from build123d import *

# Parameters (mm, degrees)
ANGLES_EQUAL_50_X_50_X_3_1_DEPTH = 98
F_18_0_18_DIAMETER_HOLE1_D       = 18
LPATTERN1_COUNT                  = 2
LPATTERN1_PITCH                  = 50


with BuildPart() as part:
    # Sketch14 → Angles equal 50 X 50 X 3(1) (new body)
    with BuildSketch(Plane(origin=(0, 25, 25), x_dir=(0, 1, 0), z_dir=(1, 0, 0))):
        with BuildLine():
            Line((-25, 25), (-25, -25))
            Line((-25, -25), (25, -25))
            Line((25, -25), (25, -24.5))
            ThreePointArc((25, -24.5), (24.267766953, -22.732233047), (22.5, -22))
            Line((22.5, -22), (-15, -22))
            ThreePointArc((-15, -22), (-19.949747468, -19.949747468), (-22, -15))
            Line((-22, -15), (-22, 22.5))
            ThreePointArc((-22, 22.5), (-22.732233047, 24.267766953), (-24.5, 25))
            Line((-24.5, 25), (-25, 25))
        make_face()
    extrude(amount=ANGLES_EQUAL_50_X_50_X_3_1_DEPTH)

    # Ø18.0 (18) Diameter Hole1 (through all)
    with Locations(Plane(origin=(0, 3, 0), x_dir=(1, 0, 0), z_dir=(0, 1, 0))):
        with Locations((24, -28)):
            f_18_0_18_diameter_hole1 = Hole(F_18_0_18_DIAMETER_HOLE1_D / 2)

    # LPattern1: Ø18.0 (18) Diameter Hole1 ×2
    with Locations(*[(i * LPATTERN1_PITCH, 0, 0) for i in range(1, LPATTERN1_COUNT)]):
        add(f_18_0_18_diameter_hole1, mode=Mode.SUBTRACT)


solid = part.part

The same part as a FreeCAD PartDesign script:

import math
import FreeCAD as App
import Part
import Sketcher
from FreeCAD import Vector

doc = App.newDocument("Part")
body = doc.addObject("PartDesign::Body", "Body")

# Sketch on YZ plane
sketch1 = body.newObject("Sketcher::SketchObject", "Sketch")
sketch1.AttachmentSupport = (doc.getObject("YZ_Plane"), [""])
sketch1.MapMode = "FlatFace"
sketch1.addGeometry(Part.LineSegment(Vector(0, 50, 0), Vector(0, 0, 0)), False)
sketch1.addGeometry(Part.LineSegment(Vector(0, 0, 0), Vector(50, 0, 0)), False)
sketch1.addGeometry(Part.LineSegment(Vector(50, 0, 0), Vector(50, 0.5, 0)), False)
sketch1.addGeometry(Part.ArcOfCircle(Part.Circle(Vector(47.5, 0.5, 0), Vector(0, 0, 1), 2.5), math.radians(0), math.radians(90)), False)
sketch1.addGeometry(Part.LineSegment(Vector(47.5, 3, 0), Vector(10, 3, 0)), False)
sketch1.addGeometry(Part.ArcOfCircle(Part.Circle(Vector(10, 10, 0), Vector(0, 0, 1), 7), math.radians(-180), math.radians(-90)), False)
sketch1.addGeometry(Part.LineSegment(Vector(3, 10, 0), Vector(3, 47.5, 0)), False)
sketch1.addGeometry(Part.ArcOfCircle(Part.Circle(Vector(0.5, 47.5, 0), Vector(0, 0, 1), 2.5), math.radians(0), math.radians(90)), False)
sketch1.addGeometry(Part.LineSegment(Vector(0.5, 50, 0), Vector(0, 50, 0)), False)
sketch1.addConstraint(Sketcher.Constraint("Coincident", 0, 2, 1, 1))
sketch1.addConstraint(Sketcher.Constraint("Coincident", 1, 2, 2, 1))
sketch1.addConstraint(Sketcher.Constraint("Tangent", 2, 2, 3, 1))
sketch1.addConstraint(Sketcher.Constraint("Tangent", 3, 2, 4, 1))
sketch1.addConstraint(Sketcher.Constraint("Tangent", 4, 2, 5, 2))
sketch1.addConstraint(Sketcher.Constraint("Tangent", 5, 1, 6, 1))
sketch1.addConstraint(Sketcher.Constraint("Tangent", 6, 2, 7, 1))
sketch1.addConstraint(Sketcher.Constraint("Tangent", 7, 2, 8, 1))
sketch1.addConstraint(Sketcher.Constraint("Coincident", 8, 2, 0, 1))
sketch1.addConstraint(Sketcher.Constraint("Vertical", 0))
sketch1.addConstraint(Sketcher.Constraint("Horizontal", 1))
sketch1.addConstraint(Sketcher.Constraint("Vertical", 2))
sketch1.addConstraint(Sketcher.Constraint("Horizontal", 4))
sketch1.addConstraint(Sketcher.Constraint("Vertical", 6))
sketch1.addConstraint(Sketcher.Constraint("Horizontal", 8))
sketch1.addConstraint(Sketcher.Constraint("Coincident", 0, 2, -1, 1))
sketch1.addConstraint(Sketcher.Constraint("Equal", 3, 7))
sketch1.addConstraint(Sketcher.Constraint("Equal", 1, 0))
sketch1.addConstraint(Sketcher.Constraint("Equal", 8, 2))
sketch1.addConstraint(Sketcher.Constraint("Radius", 5, 7.0))
sketch1.addConstraint(Sketcher.Constraint("Radius", 3, 2.5))
sketch1.addConstraint(Sketcher.Constraint("DistanceX", 1, 1, 1, 2, 50.0))
sketch1.addConstraint(Sketcher.Constraint("DistanceX", 4, 2, 4, 1, 37.5))
pad1 = body.newObject("PartDesign::Pad", "Pad")
pad1.Profile = sketch1
pad1.Length = 98

# Sketch on XZ plane
sketch2 = body.newObject("Sketcher::SketchObject", "Sketch001")
sketch2.AttachmentSupport = (doc.getObject("XZ_Plane"), [""])
sketch2.MapMode = "FlatFace"
sketch2.AttachmentOffset = App.Placement(Vector(0, 0, -3), App.Rotation())
sketch2.addGeometry(Part.Circle(Vector(24, 28, 0), Vector(0, 0, 1), 9), False)
sketch2.addConstraint(Sketcher.Constraint("Diameter", 0, 18.0))
sketch2.addConstraint(Sketcher.Constraint("DistanceX", -1, 1, 0, 3, 24.0))
sketch2.addConstraint(Sketcher.Constraint("DistanceY", -1, 1, 0, 3, 28.0))
doc.recompute()
hole = body.newObject("PartDesign::Hole", "Hole")
hole.Profile = sketch2
hole.ThreadType = "None"
hole.Diameter = 18
hole.DepthType = "ThroughAll"
hole.Reversed = True
doc.recompute()

linearpattern = body.newObject("PartDesign::LinearPattern", "LinearPattern")
linearpattern.Originals = [hole]
linearpattern.Direction = (doc.getObject("X_Axis"), [""])
linearpattern.Mode = "offset"
linearpattern.Offset = 50
linearpattern.Occurrences = 2
body.Tip = linearpattern

doc.recompute()
